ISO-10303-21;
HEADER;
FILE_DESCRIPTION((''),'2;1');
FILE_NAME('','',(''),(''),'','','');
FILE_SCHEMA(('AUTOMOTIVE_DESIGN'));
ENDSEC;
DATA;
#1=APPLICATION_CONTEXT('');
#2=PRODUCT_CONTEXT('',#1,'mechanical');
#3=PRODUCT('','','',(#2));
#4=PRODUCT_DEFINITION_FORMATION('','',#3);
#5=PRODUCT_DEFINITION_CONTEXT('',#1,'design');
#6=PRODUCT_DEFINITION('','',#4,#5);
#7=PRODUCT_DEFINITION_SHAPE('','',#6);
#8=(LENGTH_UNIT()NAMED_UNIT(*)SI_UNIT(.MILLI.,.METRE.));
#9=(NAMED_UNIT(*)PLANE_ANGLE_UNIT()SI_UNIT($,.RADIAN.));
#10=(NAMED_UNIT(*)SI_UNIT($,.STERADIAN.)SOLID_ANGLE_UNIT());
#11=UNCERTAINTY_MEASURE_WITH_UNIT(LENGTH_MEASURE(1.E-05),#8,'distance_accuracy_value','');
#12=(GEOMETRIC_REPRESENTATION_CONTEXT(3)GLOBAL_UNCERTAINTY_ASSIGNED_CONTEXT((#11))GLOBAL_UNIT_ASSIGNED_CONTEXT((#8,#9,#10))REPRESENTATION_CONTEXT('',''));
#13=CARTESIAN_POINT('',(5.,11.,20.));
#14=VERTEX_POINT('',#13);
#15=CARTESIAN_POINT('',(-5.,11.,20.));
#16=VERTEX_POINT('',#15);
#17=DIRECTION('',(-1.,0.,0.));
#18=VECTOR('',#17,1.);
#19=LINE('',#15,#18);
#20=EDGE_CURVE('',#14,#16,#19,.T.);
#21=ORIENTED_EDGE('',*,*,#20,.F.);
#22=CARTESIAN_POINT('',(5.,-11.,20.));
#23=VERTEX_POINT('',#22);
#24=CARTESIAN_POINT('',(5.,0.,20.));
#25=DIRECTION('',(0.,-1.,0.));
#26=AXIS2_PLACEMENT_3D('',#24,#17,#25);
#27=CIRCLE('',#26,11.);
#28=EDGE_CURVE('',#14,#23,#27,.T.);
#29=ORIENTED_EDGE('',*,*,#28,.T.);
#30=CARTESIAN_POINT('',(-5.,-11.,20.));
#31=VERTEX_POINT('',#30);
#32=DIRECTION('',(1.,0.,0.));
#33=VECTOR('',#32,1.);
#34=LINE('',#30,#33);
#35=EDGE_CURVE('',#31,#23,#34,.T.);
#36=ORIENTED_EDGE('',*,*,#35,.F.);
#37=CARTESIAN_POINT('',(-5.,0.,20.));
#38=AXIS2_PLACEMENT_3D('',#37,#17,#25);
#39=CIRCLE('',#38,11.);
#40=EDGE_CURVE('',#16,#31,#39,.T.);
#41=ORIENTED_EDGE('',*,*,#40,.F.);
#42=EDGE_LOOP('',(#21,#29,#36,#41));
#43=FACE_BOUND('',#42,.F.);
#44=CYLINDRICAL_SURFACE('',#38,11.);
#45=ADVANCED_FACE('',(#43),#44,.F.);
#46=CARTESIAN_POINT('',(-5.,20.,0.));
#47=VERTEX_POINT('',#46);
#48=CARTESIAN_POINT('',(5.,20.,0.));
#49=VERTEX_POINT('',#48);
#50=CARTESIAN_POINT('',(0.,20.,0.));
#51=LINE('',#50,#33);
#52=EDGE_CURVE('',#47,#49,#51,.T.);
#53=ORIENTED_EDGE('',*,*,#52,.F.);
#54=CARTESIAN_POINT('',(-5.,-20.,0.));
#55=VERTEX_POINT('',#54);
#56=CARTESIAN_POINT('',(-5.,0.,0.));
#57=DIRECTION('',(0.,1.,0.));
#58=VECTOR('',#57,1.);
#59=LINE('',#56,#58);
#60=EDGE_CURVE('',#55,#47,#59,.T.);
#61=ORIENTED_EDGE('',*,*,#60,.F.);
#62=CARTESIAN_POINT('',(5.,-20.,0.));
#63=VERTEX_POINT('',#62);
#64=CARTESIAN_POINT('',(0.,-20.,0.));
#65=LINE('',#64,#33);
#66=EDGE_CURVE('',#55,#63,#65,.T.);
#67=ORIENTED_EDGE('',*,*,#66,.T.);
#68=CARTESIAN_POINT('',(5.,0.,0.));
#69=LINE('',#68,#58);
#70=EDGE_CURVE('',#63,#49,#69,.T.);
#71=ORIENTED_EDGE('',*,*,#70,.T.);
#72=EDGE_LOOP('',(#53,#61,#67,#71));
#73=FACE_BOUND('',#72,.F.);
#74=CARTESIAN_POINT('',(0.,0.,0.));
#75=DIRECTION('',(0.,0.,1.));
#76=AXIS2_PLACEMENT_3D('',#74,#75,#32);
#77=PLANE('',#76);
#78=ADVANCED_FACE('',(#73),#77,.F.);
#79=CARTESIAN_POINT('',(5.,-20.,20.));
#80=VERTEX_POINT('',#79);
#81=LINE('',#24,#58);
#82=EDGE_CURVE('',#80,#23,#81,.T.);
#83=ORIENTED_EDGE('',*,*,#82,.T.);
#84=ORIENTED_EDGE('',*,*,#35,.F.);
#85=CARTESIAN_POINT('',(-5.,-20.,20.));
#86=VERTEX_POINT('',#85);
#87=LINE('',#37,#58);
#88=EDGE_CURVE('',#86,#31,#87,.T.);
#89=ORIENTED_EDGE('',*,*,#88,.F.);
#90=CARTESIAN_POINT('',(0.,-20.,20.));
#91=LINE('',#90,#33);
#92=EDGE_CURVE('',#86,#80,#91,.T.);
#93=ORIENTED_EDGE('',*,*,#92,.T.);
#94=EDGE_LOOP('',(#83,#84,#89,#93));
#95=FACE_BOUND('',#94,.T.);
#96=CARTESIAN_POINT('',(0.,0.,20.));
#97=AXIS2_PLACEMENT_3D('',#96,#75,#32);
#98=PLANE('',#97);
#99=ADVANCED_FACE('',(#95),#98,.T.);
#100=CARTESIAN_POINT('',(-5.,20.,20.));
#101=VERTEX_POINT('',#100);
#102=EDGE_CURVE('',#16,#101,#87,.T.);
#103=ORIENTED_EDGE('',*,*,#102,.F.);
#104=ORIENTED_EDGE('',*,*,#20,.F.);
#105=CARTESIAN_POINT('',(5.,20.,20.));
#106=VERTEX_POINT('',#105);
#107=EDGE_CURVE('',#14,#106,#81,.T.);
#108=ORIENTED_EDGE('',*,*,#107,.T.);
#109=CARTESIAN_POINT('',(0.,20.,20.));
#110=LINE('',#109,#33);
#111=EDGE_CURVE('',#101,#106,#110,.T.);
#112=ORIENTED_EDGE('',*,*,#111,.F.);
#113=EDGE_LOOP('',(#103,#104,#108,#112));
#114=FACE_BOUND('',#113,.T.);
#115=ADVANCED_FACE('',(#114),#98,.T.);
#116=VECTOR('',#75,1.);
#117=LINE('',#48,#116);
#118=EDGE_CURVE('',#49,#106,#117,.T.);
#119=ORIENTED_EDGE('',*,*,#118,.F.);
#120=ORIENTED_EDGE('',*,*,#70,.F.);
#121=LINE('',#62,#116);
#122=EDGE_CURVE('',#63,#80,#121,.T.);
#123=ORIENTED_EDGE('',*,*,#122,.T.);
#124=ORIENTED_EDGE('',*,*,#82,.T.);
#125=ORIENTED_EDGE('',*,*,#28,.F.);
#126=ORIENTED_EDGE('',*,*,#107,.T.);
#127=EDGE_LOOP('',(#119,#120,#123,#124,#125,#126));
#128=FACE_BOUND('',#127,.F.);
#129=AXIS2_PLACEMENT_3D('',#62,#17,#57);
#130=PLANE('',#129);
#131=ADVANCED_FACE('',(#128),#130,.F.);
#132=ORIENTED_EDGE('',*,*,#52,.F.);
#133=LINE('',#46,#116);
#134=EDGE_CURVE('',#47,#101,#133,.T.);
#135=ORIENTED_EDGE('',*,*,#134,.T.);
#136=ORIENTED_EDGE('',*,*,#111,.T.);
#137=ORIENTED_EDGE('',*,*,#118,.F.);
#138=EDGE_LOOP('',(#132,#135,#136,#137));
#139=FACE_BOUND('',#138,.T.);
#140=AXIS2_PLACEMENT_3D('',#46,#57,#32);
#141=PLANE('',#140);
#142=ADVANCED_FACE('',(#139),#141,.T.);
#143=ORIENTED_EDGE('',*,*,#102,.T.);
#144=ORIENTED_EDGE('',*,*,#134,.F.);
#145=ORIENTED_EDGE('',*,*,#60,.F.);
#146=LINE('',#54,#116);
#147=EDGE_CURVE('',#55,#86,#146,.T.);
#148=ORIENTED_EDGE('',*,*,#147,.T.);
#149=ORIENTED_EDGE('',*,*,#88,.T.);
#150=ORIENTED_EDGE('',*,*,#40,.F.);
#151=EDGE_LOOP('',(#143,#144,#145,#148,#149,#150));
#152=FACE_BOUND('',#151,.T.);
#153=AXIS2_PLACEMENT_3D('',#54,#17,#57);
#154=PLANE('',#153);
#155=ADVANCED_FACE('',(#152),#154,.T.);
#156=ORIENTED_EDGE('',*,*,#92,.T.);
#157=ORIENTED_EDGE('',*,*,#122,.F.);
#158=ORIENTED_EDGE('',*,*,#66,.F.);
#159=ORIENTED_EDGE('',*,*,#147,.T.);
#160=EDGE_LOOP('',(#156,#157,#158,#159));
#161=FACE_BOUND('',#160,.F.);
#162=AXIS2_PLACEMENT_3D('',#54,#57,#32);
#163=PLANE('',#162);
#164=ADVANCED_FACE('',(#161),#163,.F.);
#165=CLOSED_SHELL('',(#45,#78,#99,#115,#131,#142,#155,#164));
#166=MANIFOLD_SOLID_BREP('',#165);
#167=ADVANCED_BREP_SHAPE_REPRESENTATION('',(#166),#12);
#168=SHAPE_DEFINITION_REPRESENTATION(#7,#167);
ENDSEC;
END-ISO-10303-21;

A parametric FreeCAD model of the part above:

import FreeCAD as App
import Part
import Sketcher

doc = App.newDocument("Part")
body = doc.addObject("PartDesign::Body", "Body")

sketch1 = body.newObject("Sketcher::SketchObject", "Sketch")
sketch1.AttachmentSupport = (doc.getObject("XY_Plane"), [""])
sketch1.MapMode = "FlatFace"
sketch1.addGeometry(Part.LineSegment(App.Vector(-5, 20, 0), App.Vector(-5, -20, 0)), False)
sketch1.addGeometry(Part.LineSegment(App.Vector(-5, -20, 0), App.Vector(5, -20, 0)), False)
sketch1.addGeometry(Part.LineSegment(App.Vector(5, -20, 0), App.Vector(5, 20, 0)), False)
sketch1.addGeometry(Part.LineSegment(App.Vector(5, 20, 0), App.Vector(-5, 20, 0)), False)
sketch1.addConstraint(Sketcher.Constraint("Coincident", 0, 2, 1, 1))
sketch1.addConstraint(Sketcher.Constraint("Coincident", 1, 2, 2, 1))
sketch1.addConstraint(Sketcher.Constraint("Coincident", 2, 2, 3, 1))
sketch1.addConstraint(Sketcher.Constraint("Coincident", 3, 2, 0, 1))
sketch1.addConstraint(Sketcher.Constraint("Vertical", 0))
sketch1.addConstraint(Sketcher.Constraint("Horizontal", 1))
sketch1.addConstraint(Sketcher.Constraint("Vertical", 2))
sketch1.addConstraint(Sketcher.Constraint("Horizontal", 3))
sketch1.addConstraint(Sketcher.Constraint("Symmetric", 0, 2, 2, 2, -1, 1))
sketch1.addConstraint(Sketcher.Constraint("DistanceX", 1, 1, 1, 2, 10.0))
sketch1.addConstraint(Sketcher.Constraint("DistanceY", 0, 2, 0, 1, 40.0))
pad1 = body.newObject("PartDesign::Pad", "Pad")
pad1.Profile = sketch1
pad1.Length = 20

sketch2 = body.newObject("Sketcher::SketchObject", "Sketch001")
sketch2.AttachmentSupport = (doc.getObject("YZ_Plane"), [""])
sketch2.MapMode = "FlatFace"
sketch2.AttachmentOffset = App.Placement(App.Vector(0, 0, -5), App.Rotation())
sketch2.addGeometry(Part.Circle(App.Vector(0, 20, 0), App.Vector(0, 0, 1), 11), False)
sketch2.addConstraint(Sketcher.Constraint("PointOnObject", 0, 3, -2))
sketch2.addConstraint(Sketcher.Constraint("Diameter", 0, 22.0))
sketch2.addConstraint(Sketcher.Constraint("DistanceY", -1, 1, 0, 3, 20.0))
pocket1 = body.newObject("PartDesign::Pocket", "Pocket")
pocket1.Profile = sketch2
pocket1.Type = "ThroughAll"
pocket1.Reversed = True

doc.recompute()
